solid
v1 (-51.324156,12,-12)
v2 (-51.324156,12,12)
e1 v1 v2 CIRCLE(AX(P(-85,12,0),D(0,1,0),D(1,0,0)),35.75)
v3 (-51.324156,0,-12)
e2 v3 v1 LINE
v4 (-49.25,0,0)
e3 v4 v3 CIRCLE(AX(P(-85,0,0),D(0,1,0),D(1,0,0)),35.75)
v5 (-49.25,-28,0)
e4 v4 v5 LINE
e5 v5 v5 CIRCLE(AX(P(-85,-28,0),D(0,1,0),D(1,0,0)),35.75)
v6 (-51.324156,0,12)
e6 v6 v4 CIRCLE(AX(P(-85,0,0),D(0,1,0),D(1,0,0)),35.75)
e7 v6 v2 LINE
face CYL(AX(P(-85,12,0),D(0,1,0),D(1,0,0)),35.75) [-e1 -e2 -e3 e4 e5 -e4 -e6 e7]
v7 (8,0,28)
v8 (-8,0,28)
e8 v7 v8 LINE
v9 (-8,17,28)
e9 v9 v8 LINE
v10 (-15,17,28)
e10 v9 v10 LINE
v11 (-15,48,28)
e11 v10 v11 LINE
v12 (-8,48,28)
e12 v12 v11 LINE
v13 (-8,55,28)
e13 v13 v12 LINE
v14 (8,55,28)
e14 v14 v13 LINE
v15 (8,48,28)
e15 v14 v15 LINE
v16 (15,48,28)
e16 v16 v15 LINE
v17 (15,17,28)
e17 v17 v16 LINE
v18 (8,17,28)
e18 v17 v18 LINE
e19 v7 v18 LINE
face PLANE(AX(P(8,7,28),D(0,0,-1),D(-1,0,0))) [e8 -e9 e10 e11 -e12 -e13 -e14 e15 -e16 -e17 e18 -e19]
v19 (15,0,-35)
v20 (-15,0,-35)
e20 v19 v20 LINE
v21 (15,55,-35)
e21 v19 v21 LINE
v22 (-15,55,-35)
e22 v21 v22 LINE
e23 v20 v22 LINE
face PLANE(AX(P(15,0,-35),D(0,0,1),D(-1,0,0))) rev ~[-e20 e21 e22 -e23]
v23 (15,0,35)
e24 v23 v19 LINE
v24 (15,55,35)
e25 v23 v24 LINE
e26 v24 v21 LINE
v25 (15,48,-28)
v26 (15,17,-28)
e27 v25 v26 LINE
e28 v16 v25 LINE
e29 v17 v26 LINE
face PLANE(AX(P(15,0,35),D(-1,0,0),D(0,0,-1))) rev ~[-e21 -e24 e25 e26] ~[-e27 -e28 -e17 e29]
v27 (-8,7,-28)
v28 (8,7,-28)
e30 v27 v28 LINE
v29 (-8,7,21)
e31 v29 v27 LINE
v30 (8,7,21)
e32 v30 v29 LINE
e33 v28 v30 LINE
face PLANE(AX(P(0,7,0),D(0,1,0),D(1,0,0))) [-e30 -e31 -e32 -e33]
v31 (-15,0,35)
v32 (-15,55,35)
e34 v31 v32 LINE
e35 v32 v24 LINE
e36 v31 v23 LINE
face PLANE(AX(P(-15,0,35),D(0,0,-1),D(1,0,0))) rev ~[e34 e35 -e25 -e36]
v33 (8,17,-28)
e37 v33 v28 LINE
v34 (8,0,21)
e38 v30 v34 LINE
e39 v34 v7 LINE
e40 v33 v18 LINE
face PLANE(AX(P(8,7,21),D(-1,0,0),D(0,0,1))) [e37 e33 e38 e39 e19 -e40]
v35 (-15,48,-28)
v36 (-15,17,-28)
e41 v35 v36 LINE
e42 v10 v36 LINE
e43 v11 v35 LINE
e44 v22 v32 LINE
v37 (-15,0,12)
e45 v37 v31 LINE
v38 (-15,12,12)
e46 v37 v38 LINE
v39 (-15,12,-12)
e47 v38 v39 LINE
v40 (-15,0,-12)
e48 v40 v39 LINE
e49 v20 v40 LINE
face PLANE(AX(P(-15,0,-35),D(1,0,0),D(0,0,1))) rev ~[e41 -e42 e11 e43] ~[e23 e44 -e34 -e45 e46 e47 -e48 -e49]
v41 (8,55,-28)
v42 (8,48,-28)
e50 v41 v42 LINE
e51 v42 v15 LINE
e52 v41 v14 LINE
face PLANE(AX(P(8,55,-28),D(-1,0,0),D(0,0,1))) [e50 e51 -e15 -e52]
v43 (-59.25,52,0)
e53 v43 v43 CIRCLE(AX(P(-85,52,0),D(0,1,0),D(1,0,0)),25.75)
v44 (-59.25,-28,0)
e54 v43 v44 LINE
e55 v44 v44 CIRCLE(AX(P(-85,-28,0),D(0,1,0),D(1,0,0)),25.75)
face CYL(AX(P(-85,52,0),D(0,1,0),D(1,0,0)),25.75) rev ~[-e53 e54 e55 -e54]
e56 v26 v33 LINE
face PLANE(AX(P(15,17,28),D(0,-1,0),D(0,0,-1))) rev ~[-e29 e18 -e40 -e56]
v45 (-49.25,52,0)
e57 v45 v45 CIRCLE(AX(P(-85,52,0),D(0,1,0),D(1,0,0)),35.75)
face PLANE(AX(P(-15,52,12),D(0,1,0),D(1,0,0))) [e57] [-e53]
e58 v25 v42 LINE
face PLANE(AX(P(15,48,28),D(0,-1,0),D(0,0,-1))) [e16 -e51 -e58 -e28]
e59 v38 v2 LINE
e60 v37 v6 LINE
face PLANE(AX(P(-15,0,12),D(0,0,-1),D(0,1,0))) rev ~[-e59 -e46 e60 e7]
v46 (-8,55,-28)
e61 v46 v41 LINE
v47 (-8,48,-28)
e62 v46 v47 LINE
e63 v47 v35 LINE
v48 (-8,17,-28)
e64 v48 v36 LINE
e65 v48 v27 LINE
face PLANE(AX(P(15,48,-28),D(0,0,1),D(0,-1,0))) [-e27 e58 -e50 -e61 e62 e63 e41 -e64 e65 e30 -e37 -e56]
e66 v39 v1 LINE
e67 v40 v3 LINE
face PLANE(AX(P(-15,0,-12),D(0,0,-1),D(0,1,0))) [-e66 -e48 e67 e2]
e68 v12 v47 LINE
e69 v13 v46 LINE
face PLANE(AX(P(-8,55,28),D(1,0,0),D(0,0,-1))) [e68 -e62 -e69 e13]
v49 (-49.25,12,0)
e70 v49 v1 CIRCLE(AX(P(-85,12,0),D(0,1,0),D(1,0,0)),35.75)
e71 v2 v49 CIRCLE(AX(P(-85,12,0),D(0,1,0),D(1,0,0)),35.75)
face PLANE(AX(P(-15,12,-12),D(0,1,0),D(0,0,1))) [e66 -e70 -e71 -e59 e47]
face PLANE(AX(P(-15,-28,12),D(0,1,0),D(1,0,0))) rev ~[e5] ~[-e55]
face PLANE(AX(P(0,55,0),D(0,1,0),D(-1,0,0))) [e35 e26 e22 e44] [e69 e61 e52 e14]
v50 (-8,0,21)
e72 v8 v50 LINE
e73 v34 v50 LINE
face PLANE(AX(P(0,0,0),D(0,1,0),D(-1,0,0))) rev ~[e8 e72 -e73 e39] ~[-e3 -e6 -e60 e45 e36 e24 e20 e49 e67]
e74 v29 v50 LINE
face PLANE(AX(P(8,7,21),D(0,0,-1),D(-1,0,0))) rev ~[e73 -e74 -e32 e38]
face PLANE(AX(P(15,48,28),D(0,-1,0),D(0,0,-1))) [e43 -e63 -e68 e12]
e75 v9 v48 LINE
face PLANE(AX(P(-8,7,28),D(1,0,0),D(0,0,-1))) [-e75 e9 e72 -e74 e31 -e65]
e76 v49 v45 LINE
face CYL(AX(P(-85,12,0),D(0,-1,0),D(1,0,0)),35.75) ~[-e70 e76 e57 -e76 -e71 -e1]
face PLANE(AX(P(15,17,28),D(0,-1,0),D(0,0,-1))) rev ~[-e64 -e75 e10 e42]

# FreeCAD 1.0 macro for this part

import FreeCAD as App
import Part
import Sketcher

V = App.Vector


def add_polygon(sketch, points):
    """Adds a closed chain of lines whose ends are joined by coincident constraints."""
    first, n = sketch.GeometryCount, len(points)
    for a, b in zip(points, points[1:] + points[:1]):
        sketch.addGeometry(Part.LineSegment(App.Vector(*a, 0), App.Vector(*b, 0)), False)
    for i in range(n):
        sketch.addConstraint(Sketcher.Constraint("Coincident", first + i, 2, first + (i + 1) % n, 1))

doc = App.newDocument("Part")
body = doc.addObject("PartDesign::Body", "Body")

# Sketch on XZ plane
sketch1 = body.newObject("Sketcher::SketchObject", "Sketch")
sketch1.AttachmentSupport = (doc.getObject("XZ_Plane"), [""])
sketch1.MapMode = "FlatFace"
add_polygon(sketch1, [(15, -35), (-15, -35), (-15, 35), (15, 35)])  # lines 0-3
sketch1.addConstraint([
    Sketcher.Constraint("Horizontal", 0),
    Sketcher.Constraint("Vertical", 1),
    Sketcher.Constraint("Horizontal", 2),
    Sketcher.Constraint("Vertical", 3),
    Sketcher.Constraint("Symmetric", 0, 2, 2, 2, -1, 1),
    Sketcher.Constraint("DistanceX", 0, 2, 0, 1, 30.0),
    Sketcher.Constraint("DistanceY", 1, 1, 1, 2, 70.0),
])
pad1 = body.newObject("PartDesign::Pad", "Pad")
pad1.Profile = sketch1
pad1.Length = 55
pad1.Reversed = True

# Sketch on XZ plane
sketch2 = body.newObject("Sketcher::SketchObject", "Sketch001")
sketch2.AttachmentSupport = (doc.getObject("XZ_Plane"), [""])
sketch2.MapMode = "FlatFace"
sketch2.AttachmentOffset = App.Placement(V(0, 0, -55), App.Rotation())
add_polygon(sketch2, [(8, 28), (8, -28), (-8, -28), (-8, 28)])  # lines 0-3
sketch2.addConstraint([
    Sketcher.Constraint("Vertical", 0),
    Sketcher.Constraint("Horizontal", 1),
    Sketcher.Constraint("Vertical", 2),
    Sketcher.Constraint("Horizontal", 3),
    Sketcher.Constraint("Symmetric", 0, 2, 2, 2, -1, 1),
    Sketcher.Constraint("DistanceX", 1, 2, 1, 1, 16.0),
    Sketcher.Constraint("DistanceY", 0, 2, 0, 1, 56.0),
])
pocket1 = body.newObject("PartDesign::Pocket", "Pocket")
pocket1.Profile = sketch2
pocket1.Length = 48
pocket1.Reversed = True

# Sketch on YZ plane
sketch3 = body.newObject("Sketcher::SketchObject", "Sketch002")
sketch3.AttachmentSupport = (doc.getObject("YZ_Plane"), [""])
sketch3.MapMode = "FlatFace"
sketch3.AttachmentOffset = App.Placement(V(0, 0, 15), App.Rotation())
add_polygon(sketch3, [(17, -28), (48, -28), (48, 28), (17, 28)])  # lines 0-3
sketch3.addConstraint([
    Sketcher.Constraint("Horizontal", 0),
    Sketcher.Constraint("Vertical", 1),
    Sketcher.Constraint("Horizontal", 2),
    Sketcher.Constraint("Vertical", 3),
    Sketcher.Constraint("DistanceX", 0, 1, 0, 2, 31.0),
    Sketcher.Constraint("DistanceX", -1, 1, 2, 2, 17.0),
    Sketcher.Constraint("DistanceY", 1, 1, 1, 2, 56.0),
    Sketcher.Constraint("DistanceY", 0, 2, -1, 1, 28.0),
])
pocket2 = body.newObject("PartDesign::Pocket", "Pocket001")
pocket2.Profile = sketch3
pocket2.Length = 40

# Sketch on XZ plane
sketch4 = body.newObject("Sketcher::SketchObject", "Sketch003")
sketch4.AttachmentSupport = (doc.getObject("XZ_Plane"), [""])
sketch4.MapMode = "FlatFace"
sketch4.AttachmentOffset = App.Placement(V(0, 0, -7), App.Rotation())
add_polygon(sketch4, [(-8, 28), (8, 28), (8, 21), (-8, 21)])  # lines 0-3
sketch4.addConstraint([
    Sketcher.Constraint("Horizontal", 0),
    Sketcher.Constraint("Vertical", 1),
    Sketcher.Constraint("Horizontal", 2),
    Sketcher.Constraint("Vertical", 3),
    Sketcher.Constraint("DistanceY", 1, 2, 1, 1, 7.0),
    Sketcher.Constraint("DistanceX", 0, 1, 0, 2, 16.0),
    Sketcher.Constraint("DistanceX", -1, 1, 0, 2, 8.0),
    Sketcher.Constraint("DistanceY", -1, 1, 0, 2, 28.0),
])
pocket3 = body.newObject("PartDesign::Pocket", "Pocket002")
pocket3.Profile = sketch4
pocket3.Length = 10
pocket3.Reversed = True

# Sketch on YZ plane
sketch5 = body.newObject("Sketcher::SketchObject", "Sketch004")
sketch5.AttachmentSupport = (doc.getObject("YZ_Plane"), [""])
sketch5.MapMode = "FlatFace"
sketch5.AttachmentOffset = App.Placement(V(0, 0, -15), App.Rotation())
add_polygon(sketch5, [(12, -12), (0, -12), (0, 12), (12, 12)])  # lines 0-3
sketch5.addConstraint([
    Sketcher.Constraint("Horizontal", 0),
    Sketcher.Constraint("Vertical", 1),
    Sketcher.Constraint("Horizontal", 2),
    Sketcher.Constraint("Vertical", 3),
    Sketcher.Constraint("Symmetric", 0, 2, 1, 2, -1, 1),
    Sketcher.Constraint("DistanceX", 0, 2, 0, 1, 12.0),
    Sketcher.Constraint("DistanceY", 0, 2, -1, 1, 12.0),
])
pad2 = body.newObject("PartDesign::Pad", "Pad001")
pad2.Profile = sketch5
pad2.Length = 70
pad2.Reversed = True

# Sketch on XZ plane
sketch6 = body.newObject("Sketcher::SketchObject", "Sketch005")
sketch6.AttachmentSupport = (doc.getObject("XZ_Plane"), [""])
sketch6.MapMode = "FlatFace"
sketch6.AttachmentOffset = App.Placement(V(0, 0, -12), App.Rotation())
sketch6.addGeometry(Part.Circle(V(-85, 0, 0), V(0, 0, 1), 36), False)
sketch6.addConstraint([
    Sketcher.Constraint("PointOnObject", 0, 3, -1),
    Sketcher.Constraint("Diameter", 0, 71.5),
    Sketcher.Constraint("DistanceX", 0, 3, -1, 1, 85.0),
])
pad3 = body.newObject("PartDesign::Pad", "Pad002")
pad3.Profile = sketch6
pad3.Length = 80
pad3.Midplane = True

# Sketch on XZ plane
sketch7 = body.newObject("Sketcher::SketchObject", "Sketch006")
sketch7.AttachmentSupport = (doc.getObject("XZ_Plane"), [""])
sketch7.MapMode = "FlatFace"
sketch7.AttachmentOffset = App.Placement(V(0, 0, -52), App.Rotation())
sketch7.addGeometry(Part.Circle(V(-85, 0, 0), V(0, 0, 1), 26), False)
sketch7.addConstraint([
    Sketcher.Constraint("PointOnObject", 0, 3, -1),
    Sketcher.Constraint("Diameter", 0, 51.5),
    Sketcher.Constraint("DistanceX", 0, 3, -1, 1, 85.0),
])
pocket4 = body.newObject("PartDesign::Pocket", "Pocket003")
pocket4.Profile = sketch7
pocket4.Length = 80
pocket4.Reversed = True

doc.recompute()
